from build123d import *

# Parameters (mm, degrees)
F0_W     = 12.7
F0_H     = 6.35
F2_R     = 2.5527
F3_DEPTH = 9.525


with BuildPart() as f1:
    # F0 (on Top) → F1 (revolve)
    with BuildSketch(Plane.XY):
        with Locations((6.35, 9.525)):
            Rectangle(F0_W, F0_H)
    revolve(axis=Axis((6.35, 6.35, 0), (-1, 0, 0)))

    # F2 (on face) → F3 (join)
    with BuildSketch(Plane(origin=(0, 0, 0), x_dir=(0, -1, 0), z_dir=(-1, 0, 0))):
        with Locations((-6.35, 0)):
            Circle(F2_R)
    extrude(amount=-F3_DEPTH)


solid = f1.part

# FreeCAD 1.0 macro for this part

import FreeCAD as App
import Part
import Sketcher

V = App.Vector
Q = App.Units.Quantity

doc = App.newDocument("Part")
body = doc.addObject("PartDesign::Body", "Body")

# Sketch on XY plane
sketch1 = body.newObject("Sketcher::SketchObject", "Sketch")
sketch1.AttachmentSupport = (doc.getObject("XY_Plane"), [""])
sketch1.MapMode = "FlatFace"
sketch1.addGeometry([
    Part.LineSegment(V(0, 13, 0), V(0, 6, 0)),
    Part.LineSegment(V(0, 6, 0), V(13, 6, 0)),
    Part.LineSegment(V(13, 6, 0), V(13, 13, 0)),
    Part.LineSegment(V(13, 13, 0), V(0, 13, 0)),
], False)
sketch1.addGeometry(Part.LineSegment(V(13, 6, 0), V(0, 6, 0)), True)  # axis
sketch1.addConstraint([
    Sketcher.Constraint("Coincident", 0, 2, 1, 1),
    Sketcher.Constraint("Coincident", 1, 2, 2, 1),
    Sketcher.Constraint("Coincident", 2, 2, 3, 1),
    Sketcher.Constraint("Coincident", 3, 2, 0, 1),
    Sketcher.Constraint("Vertical", 0),
    Sketcher.Constraint("Horizontal", 1),
    Sketcher.Constraint("Vertical", 2),
    Sketcher.Constraint("Horizontal", 3),
    Sketcher.Constraint("Horizontal", 4),
    Sketcher.Constraint("Coincident", 4, 1, 1, 2),
    Sketcher.Constraint("PointOnObject", 0, 2, -2),
    Sketcher.Constraint("PointOnObject", 4, 2, -2),
    Sketcher.Constraint("DistanceX", 1, 1, 1, 2, Q("0.5 in")),
    Sketcher.Constraint("DistanceY", 0, 2, 0, 1, Q("0.25 in")),
    Sketcher.Constraint("DistanceY", -1, 1, 2, 2, Q("0.5 in")),
])
revolution = body.newObject("PartDesign::Revolution", "Revolution")
revolution.Profile = sketch1
revolution.ReferenceAxis = (sketch1, ["Axis0"])
revolution.Angle = 360

# Sketch on YZ plane
sketch2 = body.newObject("Sketcher::SketchObject", "Sketch001")
sketch2.AttachmentSupport = (doc.getObject("YZ_Plane"), [""])
sketch2.MapMode = "FlatFace"
sketch2.addGeometry(Part.Circle(V(6.3, 0, 0), V(0, 0, 1), 2.6), False)
sketch2.addConstraint([
    Sketcher.Constraint("PointOnObject", 0, 3, -1),
    Sketcher.Constraint("Diameter", 0, Q("0.201 in")),
    Sketcher.Constraint("DistanceX", -1, 1, 0, 3, Q("0.25 in")),
])
pad1 = body.newObject("PartDesign::Pad", "Pad")
pad1.Profile = sketch2
pad1.Length = Q("0.375 in")

doc.recompute()
